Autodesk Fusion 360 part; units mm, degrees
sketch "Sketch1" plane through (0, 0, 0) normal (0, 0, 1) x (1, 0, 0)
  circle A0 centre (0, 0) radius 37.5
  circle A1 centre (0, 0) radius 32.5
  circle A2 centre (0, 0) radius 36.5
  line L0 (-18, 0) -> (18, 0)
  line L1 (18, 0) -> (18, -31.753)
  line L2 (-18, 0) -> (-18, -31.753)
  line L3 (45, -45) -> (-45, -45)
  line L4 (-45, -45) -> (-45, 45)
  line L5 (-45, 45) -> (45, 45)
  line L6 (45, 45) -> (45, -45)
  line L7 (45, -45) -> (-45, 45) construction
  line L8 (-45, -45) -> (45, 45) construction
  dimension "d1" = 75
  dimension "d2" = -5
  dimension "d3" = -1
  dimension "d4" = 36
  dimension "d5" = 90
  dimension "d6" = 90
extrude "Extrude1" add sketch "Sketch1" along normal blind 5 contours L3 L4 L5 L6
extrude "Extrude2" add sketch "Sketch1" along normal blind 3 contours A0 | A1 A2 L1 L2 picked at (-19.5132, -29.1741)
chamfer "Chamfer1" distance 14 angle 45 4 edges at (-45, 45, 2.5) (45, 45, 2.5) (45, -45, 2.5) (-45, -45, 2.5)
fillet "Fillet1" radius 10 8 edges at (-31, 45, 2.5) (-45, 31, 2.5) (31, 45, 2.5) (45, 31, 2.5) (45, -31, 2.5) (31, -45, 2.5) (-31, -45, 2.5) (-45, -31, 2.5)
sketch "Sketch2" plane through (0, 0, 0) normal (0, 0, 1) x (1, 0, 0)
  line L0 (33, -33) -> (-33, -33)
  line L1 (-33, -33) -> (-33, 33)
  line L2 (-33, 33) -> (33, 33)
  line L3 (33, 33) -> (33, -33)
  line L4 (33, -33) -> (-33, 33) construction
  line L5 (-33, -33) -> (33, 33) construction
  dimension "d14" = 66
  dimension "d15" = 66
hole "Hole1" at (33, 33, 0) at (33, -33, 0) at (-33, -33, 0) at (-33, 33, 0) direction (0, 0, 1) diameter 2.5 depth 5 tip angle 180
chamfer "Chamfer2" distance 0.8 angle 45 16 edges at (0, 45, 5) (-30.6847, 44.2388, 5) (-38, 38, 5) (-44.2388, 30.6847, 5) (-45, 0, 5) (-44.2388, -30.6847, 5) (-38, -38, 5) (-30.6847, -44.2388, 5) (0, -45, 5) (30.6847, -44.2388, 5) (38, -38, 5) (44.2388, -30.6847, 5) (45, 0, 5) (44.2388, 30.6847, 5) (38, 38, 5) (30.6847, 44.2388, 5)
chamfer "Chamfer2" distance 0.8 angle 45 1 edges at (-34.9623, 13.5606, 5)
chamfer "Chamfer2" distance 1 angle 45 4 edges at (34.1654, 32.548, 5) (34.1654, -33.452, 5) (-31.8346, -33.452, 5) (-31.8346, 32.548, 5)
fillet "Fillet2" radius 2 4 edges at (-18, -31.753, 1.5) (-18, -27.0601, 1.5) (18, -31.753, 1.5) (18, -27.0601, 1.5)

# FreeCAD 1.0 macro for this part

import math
import FreeCAD as App
import Part
import Sketcher
Q = App.Units.Quantity


def edges_at(feature, points):
    """Names of the edges that pass closest to the given points."""
    edges = feature.Shape.Edges
    near = lambda p: min(range(len(edges)), key=lambda i: edges[i].distToShape(Part.Vertex(*p))[0])
    return sorted({f"Edge{near(p) + 1}" for p in points})


def add_polygon(sketch, points):
    """Adds a closed chain of lines whose ends are joined by coincident constraints."""
    first, n = sketch.GeometryCount, len(points)
    for a, b in zip(points, points[1:] + points[:1]):
        sketch.addGeometry(Part.LineSegment(App.Vector(*a, 0), App.Vector(*b, 0)), False)
    for i in range(n):
        sketch.addConstraint(Sketcher.Constraint("Coincident", first + i, 2, first + (i + 1) % n, 1))

doc = App.newDocument("Part")
params = doc.addObject("Spreadsheet::Sheet", "Params")
for row, (alias, value) in enumerate([
    ("sketch1_diameter", "75 mm"),
    ("sketch1_width", "90 mm"),
    ("pad1_length", "5 mm"),
    ("sketch2_diameter", "75 mm"),
    ("sketch2_radius", "36.5 mm"),
    ("sketch2_radius2", "32.5 mm"),
    ("pad2_length", "3 mm"),
    ("chamfer_size", "14 mm"),
    ("fillet_radius", "10 mm"),
    ("sketch3_diameter", "2.5 mm"),
    ("hole_diameter", "2.5 mm"),
    ("hole_depth", "5 mm"),
    ("chamfer2_size", "0.8 mm"),
    ("chamfer3_size", "0.8 mm"),
    ("chamfer4_size", "1 mm"),
    ("fillet2_radius", "2 mm"),
], start=1):
    params.set(f"A{row}", alias)
    params.set(f"B{row}", "=" + value)
    params.setAlias(f"B{row}", alias)

body = doc.addObject("PartDesign::Body", "Body")

sketch1 = body.newObject("Sketcher::SketchObject", "Sketch")
sketch1.AttachmentSupport = (doc.getObject("XY_Plane"), [""])
sketch1.MapMode = "FlatFace"
add_polygon(sketch1, [(-45, -45), (45, -45), (45, 45), (-45, 45)])
sketch1.addGeometry(Part.Circle(App.Vector(0, 0, 0), App.Vector(0, 0, 1), 38), False)
sketch1.addConstraint(Sketcher.Constraint("Horizontal", 0))
sketch1.addConstraint(Sketcher.Constraint("Vertical", 1))
sketch1.addConstraint(Sketcher.Constraint("Horizontal", 2))
sketch1.addConstraint(Sketcher.Constraint("Vertical", 3))
sketch1.addConstraint(Sketcher.Constraint("Coincident", 4, 3, -1, 1))
sketch1.addConstraint(Sketcher.Constraint("Symmetric", 0, 2, 2, 2, -1, 1))
sketch1.addConstraint(Sketcher.Constraint("Equal", 2, 1))
sketch1.addConstraint(Sketcher.Constraint("Diameter", 4, Q("75 mm")))
sketch1.addConstraint(Sketcher.Constraint("DistanceX", 0, 1, 0, 2, Q("90 mm")))
sketch1.setExpression("Constraints[11]", "Params.sketch1_diameter")
sketch1.setExpression("Constraints[12]", "Params.sketch1_width")
pad1 = body.newObject("PartDesign::Pad", "Pad")
pad1.Profile = sketch1
pad1.setExpression("Length", "Params.pad1_length")

sketch2 = body.newObject("Sketcher::SketchObject", "Sketch001")
sketch2.AttachmentSupport = (doc.getObject("XY_Plane"), [""])
sketch2.MapMode = "FlatFace"
sketch2.addGeometry(Part.Circle(App.Vector(0, 0, 0), App.Vector(0, 0, 1), 37.5), False)
sketch2.addGeometry(Part.ArcOfCircle(Part.Circle(App.Vector(0, 0, 0), App.Vector(0, 0, 1), 36.5), math.radians(-120), math.radians(-60)), False)
sketch2.addGeometry(Part.LineSegment(App.Vector(-18, -31.8, 0), App.Vector(-18, -27.1, 0)), False)
sketch2.addGeometry(Part.ArcOfCircle(Part.Circle(App.Vector(0, 0, 0), App.Vector(0, 0, 1), 32.5), math.radians(-56), math.radians(236)), False)
sketch2.addGeometry(Part.LineSegment(App.Vector(18, -27.1, 0), App.Vector(18, -31.8, 0)), False)
sketch2.addConstraint(Sketcher.Constraint("Coincident", 1, 1, 2, 1))
sketch2.addConstraint(Sketcher.Constraint("Coincident", 2, 2, 3, 2))
sketch2.addConstraint(Sketcher.Constraint("Coincident", 3, 1, 4, 1))
sketch2.addConstraint(Sketcher.Constraint("Coincident", 4, 2, 1, 2))
sketch2.addConstraint(Sketcher.Constraint("Vertical", 2))
sketch2.addConstraint(Sketcher.Constraint("Vertical", 4))
sketch2.addConstraint(Sketcher.Constraint("Coincident", 0, 3, -1, 1))
sketch2.addConstraint(Sketcher.Constraint("Coincident", 1, 3, -1, 1))
sketch2.addConstraint(Sketcher.Constraint("Coincident", 3, 3, -1, 1))
sketch2.addConstraint(Sketcher.Constraint("Horizontal", 2, 2, 3, 1))
sketch2.addConstraint(Sketcher.Constraint("Diameter", 0, Q("75 mm")))
sketch2.addConstraint(Sketcher.Constraint("DistanceX", 2, 2, 3, 1, Q("36 mm")))
sketch2.addConstraint(Sketcher.Constraint("Radius", 1, Q("36.5 mm")))
sketch2.addConstraint(Sketcher.Constraint("Radius", 3, Q("32.5 mm")))
sketch2.setExpression("Constraints[10]", "Params.sketch2_diameter")
sketch2.setExpression("Constraints[12]", "Params.sketch2_radius")
sketch2.setExpression("Constraints[13]", "Params.sketch2_radius2")
pad2 = body.newObject("PartDesign::Pad", "Pad001")
pad2.Profile = sketch2
pad2.setExpression("Length", "Params.pad2_length")
doc.recompute()

chamfer = body.newObject("PartDesign::Chamfer", "Chamfer")
chamfer.Base = (pad2, edges_at(pad2, [
    (-45, 45, 2.5),
    (45, 45, 2.5),
    (45, -45, 2.5),
    (-45, -45, 2.5),
]))
chamfer.setExpression("Size", "Params.chamfer_size")
doc.recompute()

fillet = body.newObject("PartDesign::Fillet", "Fillet")
fillet.Base = (chamfer, edges_at(chamfer, [
    (-31, 45, 2.5),
    (-45, 31, 2.5),
    (31, 45, 2.5),
    (45, 31, 2.5),
    (45, -31, 2.5),
    (31, -45, 2.5),
    (-31, -45, 2.5),
    (-45, -31, 2.5),
]))
fillet.setExpression("Radius", "Params.fillet_radius")

sketch3 = body.newObject("Sketcher::SketchObject", "Sketch002")
sketch3.AttachmentSupport = (doc.getObject("XY_Plane"), [""])
sketch3.MapMode = "FlatFace"
sketch3.addGeometry(Part.Circle(App.Vector(33, 33, 0), App.Vector(0, 0, 1), 1.2), False)
sketch3.addGeometry(Part.Circle(App.Vector(33, -33, 0), App.Vector(0, 0, 1), 1.2), False)
sketch3.addGeometry(Part.Circle(App.Vector(-33, -33, 0), App.Vector(0, 0, 1), 1.2), False)
sketch3.addGeometry(Part.Circle(App.Vector(-33, 33, 0), App.Vector(0, 0, 1), 1.2), False)
sketch3.addConstraint(Sketcher.Constraint("Equal", 0, 1))
sketch3.addConstraint(Sketcher.Constraint("Equal", 1, 2))
sketch3.addConstraint(Sketcher.Constraint("Equal", 2, 3))
sketch3.addConstraint(Sketcher.Constraint("Symmetric", 0, 3, 2, 3, -1, 1))
sketch3.addConstraint(Sketcher.Constraint("Symmetric", 1, 3, 3, 3, -1, 1))
sketch3.addConstraint(Sketcher.Constraint("Symmetric", 1, 3, 2, 3, -2))
sketch3.addConstraint(Sketcher.Constraint("Diameter", 0, Q("2.5 mm")))
sketch3.addConstraint(Sketcher.Constraint("DistanceX", -1, 1, 0, 3, Q("33 mm")))
sketch3.addConstraint(Sketcher.Constraint("DistanceY", -1, 1, 0, 3, Q("33 mm")))
sketch3.setExpression("Constraints[6]", "Params.sketch3_diameter")
doc.recompute()
hole = body.newObject("PartDesign::Hole", "Hole")
hole.Profile = sketch3
hole.ThreadType = "None"
hole.setExpression("Diameter", "Params.hole_diameter")
hole.DepthType = "Dimension"
hole.setExpression("Depth", "Params.hole_depth")
hole.DrillPoint = "Flat"
hole.Reversed = True
doc.recompute()

chamfer2 = body.newObject("PartDesign::Chamfer", "Chamfer001")
chamfer2.Base = (hole, edges_at(hole, [
    (0, 45, 5),
    (-30.685, 44.239, 5),
    (-38, 38, 5),
    (-44.239, 30.685, 5),
    (-45, 0, 5),
    (-44.239, -30.685, 5),
    (-38, -38, 5),
    (-30.685, -44.239, 5),
    (0, -45, 5),
    (30.685, -44.239, 5),
    (38, -38, 5),
    (44.239, -30.685, 5),
    (45, 0, 5),
    (44.239, 30.685, 5),
    (38, 38, 5),
    (30.685, 44.239, 5),
]))
chamfer2.setExpression("Size", "Params.chamfer2_size")
doc.recompute()

chamfer3 = body.newObject("PartDesign::Chamfer", "Chamfer002")
chamfer3.Base = (chamfer2, edges_at(chamfer2, [(-34.962, 13.561, 5)]))
chamfer3.setExpression("Size", "Params.chamfer3_size")
doc.recompute()

chamfer4 = body.newObject("PartDesign::Chamfer", "Chamfer003")
chamfer4.Base = (chamfer3, edges_at(chamfer3, [
    (34.165, 32.548, 5),
    (34.165, -33.452, 5),
    (-31.835, -33.452, 5),
    (-31.835, 32.548, 5),
]))
chamfer4.setExpression("Size", "Params.chamfer4_size")
doc.recompute()

fillet2 = body.newObject("PartDesign::Fillet", "Fillet001")
fillet2.Base = (chamfer4, edges_at(chamfer4, [
    (-18, -31.753, 1.5),
    (-18, -27.06, 1.5),
    (18, -31.753, 1.5),
    (18, -27.06, 1.5),
]))
fillet2.setExpression("Radius", "Params.fillet2_radius")

doc.recompute()
